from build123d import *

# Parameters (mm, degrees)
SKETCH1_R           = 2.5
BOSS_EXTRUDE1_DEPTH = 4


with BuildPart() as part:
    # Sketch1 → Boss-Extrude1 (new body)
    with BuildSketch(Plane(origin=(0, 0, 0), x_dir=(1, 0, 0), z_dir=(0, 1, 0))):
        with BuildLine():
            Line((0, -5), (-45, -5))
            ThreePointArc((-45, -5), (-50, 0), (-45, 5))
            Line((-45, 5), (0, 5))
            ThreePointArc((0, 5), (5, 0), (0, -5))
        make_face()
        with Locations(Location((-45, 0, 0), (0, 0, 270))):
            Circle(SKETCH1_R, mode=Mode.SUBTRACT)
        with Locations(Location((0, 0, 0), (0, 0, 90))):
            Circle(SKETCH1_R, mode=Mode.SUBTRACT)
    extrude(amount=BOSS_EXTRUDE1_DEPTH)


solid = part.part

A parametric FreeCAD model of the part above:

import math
import FreeCAD as App
import Part
import Sketcher
from FreeCAD import Vector
Q = App.Units.Quantity

doc = App.newDocument("Part")
body = doc.addObject("PartDesign::Body", "Body")

sketch1 = body.newObject("Sketcher::SketchObject", "Sketch")
sketch1.AttachmentSupport = (doc.getObject("XZ_Plane"), [""])
sketch1.MapMode = "FlatFace"
sketch1.addGeometry([
    Part.LineSegment(Vector(-45, 5, 0), Vector(0, 5, 0)),
    Part.ArcOfCircle(Part.Circle(Vector(0, 0, 0), Vector(0, 0, 1), 5), math.radians(-90), math.radians(90)),
    Part.LineSegment(Vector(0, -5, 0), Vector(-45, -5, 0)),
    Part.ArcOfCircle(Part.Circle(Vector(-45, 0, 0), Vector(0, 0, 1), 5), math.radians(90), math.radians(270)),
    Part.Circle(Vector(0, 0, 0), Vector(0, 0, 1), 2.5),
    Part.Circle(Vector(-45, 0, 0), Vector(0, 0, 1), 2.5),
], False)
sketch1.addConstraint([
    Sketcher.Constraint("Tangent", 0, 2, 1, 2),
    Sketcher.Constraint("Tangent", 1, 1, 2, 1),
    Sketcher.Constraint("Tangent", 2, 2, 3, 2),
    Sketcher.Constraint("Tangent", 3, 1, 0, 1),
    Sketcher.Constraint("Horizontal", 0),
    Sketcher.Constraint("Horizontal", 2),
    Sketcher.Constraint("Coincident", 1, 3, -1, 1),
    Sketcher.Constraint("Coincident", 4, 3, -1, 1),
    Sketcher.Constraint("Coincident", 5, 3, 3, 3),
    Sketcher.Constraint("Equal", 4, 5),
    Sketcher.Constraint("Diameter", 4, Q("5 mm")),
    Sketcher.Constraint("Radius", 1, Q("5 mm")),
    Sketcher.Constraint("DistanceX", 0, 1, 0, 2, Q("45 mm")),
])
pad1 = body.newObject("PartDesign::Pad", "Pad")
pad1.Profile = sketch1
pad1.Length = 4
pad1.Reversed = True

doc.recompute()
